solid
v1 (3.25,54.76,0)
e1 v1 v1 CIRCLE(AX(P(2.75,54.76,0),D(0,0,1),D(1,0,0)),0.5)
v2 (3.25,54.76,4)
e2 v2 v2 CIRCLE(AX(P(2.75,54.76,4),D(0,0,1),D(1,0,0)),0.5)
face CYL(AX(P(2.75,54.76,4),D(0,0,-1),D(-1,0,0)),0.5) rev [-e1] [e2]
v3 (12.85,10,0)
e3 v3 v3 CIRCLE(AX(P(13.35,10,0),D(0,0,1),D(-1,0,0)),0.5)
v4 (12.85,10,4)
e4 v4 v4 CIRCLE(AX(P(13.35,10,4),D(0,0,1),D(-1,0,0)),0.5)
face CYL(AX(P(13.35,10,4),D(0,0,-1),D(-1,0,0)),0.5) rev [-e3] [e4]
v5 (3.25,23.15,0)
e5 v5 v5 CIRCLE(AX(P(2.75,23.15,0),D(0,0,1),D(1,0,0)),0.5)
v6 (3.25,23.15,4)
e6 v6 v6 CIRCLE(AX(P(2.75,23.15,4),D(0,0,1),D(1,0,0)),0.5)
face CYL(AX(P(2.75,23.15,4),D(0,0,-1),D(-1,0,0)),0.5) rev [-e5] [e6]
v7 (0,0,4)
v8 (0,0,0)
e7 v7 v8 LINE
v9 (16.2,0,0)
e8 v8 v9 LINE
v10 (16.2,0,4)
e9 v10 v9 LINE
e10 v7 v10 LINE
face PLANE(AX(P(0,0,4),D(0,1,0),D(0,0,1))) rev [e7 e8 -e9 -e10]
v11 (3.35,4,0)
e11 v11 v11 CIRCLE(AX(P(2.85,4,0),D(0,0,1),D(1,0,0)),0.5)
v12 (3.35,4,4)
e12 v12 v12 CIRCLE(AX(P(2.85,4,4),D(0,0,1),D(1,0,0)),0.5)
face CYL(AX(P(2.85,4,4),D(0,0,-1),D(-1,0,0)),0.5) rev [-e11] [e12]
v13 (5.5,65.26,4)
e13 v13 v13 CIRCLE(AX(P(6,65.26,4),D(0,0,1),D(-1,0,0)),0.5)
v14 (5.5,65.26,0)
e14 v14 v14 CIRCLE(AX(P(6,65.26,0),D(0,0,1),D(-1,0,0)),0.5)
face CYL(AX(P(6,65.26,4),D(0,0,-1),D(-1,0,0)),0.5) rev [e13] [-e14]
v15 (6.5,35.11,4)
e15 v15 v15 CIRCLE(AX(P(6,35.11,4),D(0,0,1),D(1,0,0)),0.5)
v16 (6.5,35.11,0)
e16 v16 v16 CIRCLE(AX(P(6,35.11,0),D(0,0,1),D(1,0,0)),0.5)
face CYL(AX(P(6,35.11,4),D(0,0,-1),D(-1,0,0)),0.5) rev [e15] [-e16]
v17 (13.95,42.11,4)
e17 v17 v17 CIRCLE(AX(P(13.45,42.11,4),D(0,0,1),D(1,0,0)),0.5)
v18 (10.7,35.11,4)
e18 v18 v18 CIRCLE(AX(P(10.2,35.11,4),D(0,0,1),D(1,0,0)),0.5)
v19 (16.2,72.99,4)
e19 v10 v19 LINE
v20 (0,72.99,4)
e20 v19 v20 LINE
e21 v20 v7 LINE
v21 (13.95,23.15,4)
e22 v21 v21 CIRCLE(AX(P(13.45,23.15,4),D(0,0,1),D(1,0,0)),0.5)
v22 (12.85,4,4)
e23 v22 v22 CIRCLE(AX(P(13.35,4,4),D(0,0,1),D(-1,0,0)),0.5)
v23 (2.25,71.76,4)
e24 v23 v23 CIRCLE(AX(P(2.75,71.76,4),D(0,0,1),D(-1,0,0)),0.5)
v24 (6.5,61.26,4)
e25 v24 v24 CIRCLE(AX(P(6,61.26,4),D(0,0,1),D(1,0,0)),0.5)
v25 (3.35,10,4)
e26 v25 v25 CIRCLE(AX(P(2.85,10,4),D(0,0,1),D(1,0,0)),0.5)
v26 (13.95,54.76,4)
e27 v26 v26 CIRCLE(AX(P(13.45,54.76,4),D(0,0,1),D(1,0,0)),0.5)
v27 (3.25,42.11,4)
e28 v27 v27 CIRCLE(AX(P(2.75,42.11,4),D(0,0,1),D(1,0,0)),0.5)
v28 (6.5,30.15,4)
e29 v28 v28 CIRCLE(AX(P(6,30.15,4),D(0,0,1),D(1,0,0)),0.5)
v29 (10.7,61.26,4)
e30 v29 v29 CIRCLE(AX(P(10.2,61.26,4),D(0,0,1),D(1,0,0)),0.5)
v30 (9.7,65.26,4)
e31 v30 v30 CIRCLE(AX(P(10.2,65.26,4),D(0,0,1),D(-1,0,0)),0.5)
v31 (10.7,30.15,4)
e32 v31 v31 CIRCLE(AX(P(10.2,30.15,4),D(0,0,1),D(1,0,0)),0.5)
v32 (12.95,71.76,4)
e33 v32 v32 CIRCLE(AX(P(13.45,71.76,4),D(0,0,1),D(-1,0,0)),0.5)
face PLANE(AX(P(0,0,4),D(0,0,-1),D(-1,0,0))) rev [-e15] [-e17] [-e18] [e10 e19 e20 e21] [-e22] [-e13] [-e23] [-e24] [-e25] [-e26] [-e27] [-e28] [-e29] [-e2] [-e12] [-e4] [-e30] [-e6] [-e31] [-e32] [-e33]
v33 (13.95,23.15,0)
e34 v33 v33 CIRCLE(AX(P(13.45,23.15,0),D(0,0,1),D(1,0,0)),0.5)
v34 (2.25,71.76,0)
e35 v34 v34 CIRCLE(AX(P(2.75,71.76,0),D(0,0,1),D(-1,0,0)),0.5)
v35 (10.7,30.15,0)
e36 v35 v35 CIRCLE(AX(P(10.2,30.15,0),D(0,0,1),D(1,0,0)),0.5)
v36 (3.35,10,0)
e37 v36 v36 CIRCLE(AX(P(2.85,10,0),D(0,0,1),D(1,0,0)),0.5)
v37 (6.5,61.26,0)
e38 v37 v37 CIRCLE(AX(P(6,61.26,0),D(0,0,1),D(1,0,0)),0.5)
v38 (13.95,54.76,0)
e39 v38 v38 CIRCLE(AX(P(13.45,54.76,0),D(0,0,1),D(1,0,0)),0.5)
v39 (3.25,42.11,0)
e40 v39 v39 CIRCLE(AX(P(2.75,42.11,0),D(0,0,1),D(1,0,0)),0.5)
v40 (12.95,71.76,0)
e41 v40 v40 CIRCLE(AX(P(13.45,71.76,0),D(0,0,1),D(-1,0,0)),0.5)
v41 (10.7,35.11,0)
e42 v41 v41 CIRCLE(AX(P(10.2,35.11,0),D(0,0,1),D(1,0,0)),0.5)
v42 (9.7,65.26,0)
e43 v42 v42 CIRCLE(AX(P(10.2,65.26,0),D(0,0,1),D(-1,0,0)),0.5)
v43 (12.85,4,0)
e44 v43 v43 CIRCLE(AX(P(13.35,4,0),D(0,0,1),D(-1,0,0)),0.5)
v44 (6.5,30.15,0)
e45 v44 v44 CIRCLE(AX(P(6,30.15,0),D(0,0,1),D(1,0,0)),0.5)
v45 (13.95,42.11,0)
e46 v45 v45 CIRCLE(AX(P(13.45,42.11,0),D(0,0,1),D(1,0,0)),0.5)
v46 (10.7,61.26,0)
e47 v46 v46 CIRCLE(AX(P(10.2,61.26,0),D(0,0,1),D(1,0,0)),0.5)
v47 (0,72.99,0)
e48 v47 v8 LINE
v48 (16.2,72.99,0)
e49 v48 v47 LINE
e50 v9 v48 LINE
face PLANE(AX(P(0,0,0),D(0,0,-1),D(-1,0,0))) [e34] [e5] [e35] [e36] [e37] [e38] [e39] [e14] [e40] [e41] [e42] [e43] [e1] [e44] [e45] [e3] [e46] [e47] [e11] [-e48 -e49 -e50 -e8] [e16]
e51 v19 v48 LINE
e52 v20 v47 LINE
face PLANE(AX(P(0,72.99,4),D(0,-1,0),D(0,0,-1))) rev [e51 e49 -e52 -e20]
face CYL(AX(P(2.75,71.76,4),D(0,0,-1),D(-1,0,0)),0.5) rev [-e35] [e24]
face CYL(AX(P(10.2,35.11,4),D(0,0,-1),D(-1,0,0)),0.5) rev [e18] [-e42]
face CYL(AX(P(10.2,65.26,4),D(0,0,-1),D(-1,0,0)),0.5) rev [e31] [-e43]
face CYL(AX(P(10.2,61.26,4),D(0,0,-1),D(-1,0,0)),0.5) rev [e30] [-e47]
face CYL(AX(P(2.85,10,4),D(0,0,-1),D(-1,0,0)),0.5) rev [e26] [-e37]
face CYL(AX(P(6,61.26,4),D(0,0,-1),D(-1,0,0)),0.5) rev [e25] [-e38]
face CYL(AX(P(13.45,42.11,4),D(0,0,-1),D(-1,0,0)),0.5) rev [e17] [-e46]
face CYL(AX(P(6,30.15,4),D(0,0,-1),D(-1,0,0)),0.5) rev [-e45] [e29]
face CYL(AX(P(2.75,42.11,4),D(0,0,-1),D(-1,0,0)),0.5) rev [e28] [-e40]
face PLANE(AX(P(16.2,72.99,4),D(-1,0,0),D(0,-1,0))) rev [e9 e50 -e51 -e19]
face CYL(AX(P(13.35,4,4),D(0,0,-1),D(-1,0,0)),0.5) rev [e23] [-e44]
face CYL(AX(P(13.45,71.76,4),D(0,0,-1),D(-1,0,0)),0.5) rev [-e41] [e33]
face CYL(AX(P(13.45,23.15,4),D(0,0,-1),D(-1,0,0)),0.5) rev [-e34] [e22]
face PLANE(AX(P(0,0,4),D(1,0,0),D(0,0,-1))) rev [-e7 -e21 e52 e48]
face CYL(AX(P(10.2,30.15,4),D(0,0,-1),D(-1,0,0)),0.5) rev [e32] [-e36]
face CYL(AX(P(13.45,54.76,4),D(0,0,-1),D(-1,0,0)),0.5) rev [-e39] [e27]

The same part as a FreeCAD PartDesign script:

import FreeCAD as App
import Part
import Sketcher

V = App.Vector


def add_polygon(sketch, points):
    """Adds a closed chain of lines whose ends are joined by coincident constraints."""
    first, n = sketch.GeometryCount, len(points)
    for a, b in zip(points, points[1:] + points[:1]):
        sketch.addGeometry(Part.LineSegment(App.Vector(*a, 0), App.Vector(*b, 0)), False)
    for i in range(n):
        sketch.addConstraint(Sketcher.Constraint("Coincident", first + i, 2, first + (i + 1) % n, 1))

doc = App.newDocument("Part")
params = doc.addObject("Spreadsheet::Sheet", "Params")
for row, (alias, value) in enumerate([
    ("sketch1_diameter", "1 mm"),
    ("sketch1_width", "16.2 mm"),
    ("sketch1_height", "72.99 mm"),
    ("pad1_length", "4 mm"),
], start=1):
    params.set(f"A{row}", alias)
    params.set(f"B{row}", "=" + value)
    params.setAlias(f"B{row}", alias)

body = doc.addObject("PartDesign::Body", "Body")

# Sketch on XY plane
sketch1 = body.newObject("Sketcher::SketchObject", "Sketch")
sketch1.AttachmentSupport = (doc.getObject("XY_Plane"), [""])
sketch1.MapMode = "FlatFace"
add_polygon(sketch1, [(0, 72.99), (0, 0), (16.2, 0), (16.2, 72.99)])  # lines 0-3
sketch1.addGeometry(Part.Circle(V(2.85, 4, 0), V(0, 0, 1), 0.5), False)  # 4
sketch1.addGeometry(Part.Circle(V(2.85, 10, 0), V(0, 0, 1), 0.5), False)  # 5
sketch1.addGeometry(Part.Circle(V(2.75, 23.15, 0), V(0, 0, 1), 0.5), False)  # 6
sketch1.addGeometry(Part.Circle(V(6, 30.15, 0), V(0, 0, 1), 0.5), False)  # 7
sketch1.addGeometry(Part.Circle(V(6, 35.11, 0), V(0, 0, 1), 0.5), False)  # 8
sketch1.addGeometry(Part.Circle(V(13.35, 4, 0), V(0, 0, 1), 0.5), False)  # 9
sketch1.addGeometry(Part.Circle(V(13.35, 10, 0), V(0, 0, 1), 0.5), False)  # 10
sketch1.addGeometry(Part.Circle(V(10.2, 30.15, 0), V(0, 0, 1), 0.5), False)  # 11
sketch1.addGeometry(Part.Circle(V(10.2, 35.11, 0), V(0, 0, 1), 0.5), False)  # 12
sketch1.addGeometry(Part.Circle(V(13.45, 23.15, 0), V(0, 0, 1), 0.5), False)  # 13
sketch1.addGeometry(Part.Circle(V(2.75, 42.11, 0), V(0, 0, 1), 0.5), False)  # 14
sketch1.addGeometry(Part.Circle(V(2.75, 54.76, 0), V(0, 0, 1), 0.5), False)  # 15
sketch1.addGeometry(Part.Circle(V(2.75, 71.76, 0), V(0, 0, 1), 0.5), False)  # 16
sketch1.addGeometry(Part.Circle(V(6, 61.26, 0), V(0, 0, 1), 0.5), False)  # 17
sketch1.addGeometry(Part.Circle(V(6, 65.26, 0), V(0, 0, 1), 0.5), False)  # 18
sketch1.addGeometry(Part.Circle(V(13.45, 42.11, 0), V(0, 0, 1), 0.5), False)  # 19
sketch1.addGeometry(Part.Circle(V(13.45, 54.76, 0), V(0, 0, 1), 0.5), False)  # 20
sketch1.addGeometry(Part.Circle(V(10.2, 61.26, 0), V(0, 0, 1), 0.5), False)  # 21
sketch1.addGeometry(Part.Circle(V(10.2, 65.26, 0), V(0, 0, 1), 0.5), False)  # 22
sketch1.addGeometry(Part.Circle(V(13.45, 71.76, 0), V(0, 0, 1), 0.5), False)  # 23
sketch1.addConstraint([
    Sketcher.Constraint("Vertical", 0),
    Sketcher.Constraint("Horizontal", 1),
    Sketcher.Constraint("Vertical", 2),
    Sketcher.Constraint("Horizontal", 3),
    Sketcher.Constraint("Coincident", 0, 2, -1, 1),
    Sketcher.Constraint("Equal", 4, 5),
    Sketcher.Constraint("Equal", 5, 6),
    Sketcher.Constraint("Equal", 6, 7),
    Sketcher.Constraint("Equal", 7, 8),
    Sketcher.Constraint("Equal", 8, 9),
    Sketcher.Constraint("Equal", 9, 10),
    Sketcher.Constraint("Equal", 10, 11),
    Sketcher.Constraint("Equal", 11, 12),
    Sketcher.Constraint("Equal", 12, 13),
    Sketcher.Constraint("Equal", 13, 14),
    Sketcher.Constraint("Equal", 14, 15),
    Sketcher.Constraint("Equal", 15, 16),
    Sketcher.Constraint("Equal", 16, 17),
    Sketcher.Constraint("Equal", 17, 18),
    Sketcher.Constraint("Equal", 18, 19),
    Sketcher.Constraint("Equal", 19, 20),
    Sketcher.Constraint("Equal", 20, 21),
    Sketcher.Constraint("Equal", 21, 22),
    Sketcher.Constraint("Equal", 22, 23),
    Sketcher.Constraint("Horizontal", 4, 3, 9, 3),
    Sketcher.Constraint("Horizontal", 5, 3, 10, 3),
    Sketcher.Constraint("Horizontal", 7, 3, 11, 3),
    Sketcher.Constraint("Horizontal", 8, 3, 12, 3),
    Sketcher.Constraint("Horizontal", 6, 3, 13, 3),
    Sketcher.Constraint("Horizontal", 14, 3, 19, 3),
    Sketcher.Constraint("Horizontal", 15, 3, 20, 3),
    Sketcher.Constraint("Horizontal", 17, 3, 21, 3),
    Sketcher.Constraint("Horizontal", 18, 3, 22, 3),
    Sketcher.Constraint("Horizontal", 16, 3, 23, 3),
    Sketcher.Constraint("Vertical", 4, 3, 5, 3),
    Sketcher.Constraint("Vertical", 7, 3, 8, 3),
    Sketcher.Constraint("Vertical", 9, 3, 10, 3),
    Sketcher.Constraint("Vertical", 11, 3, 12, 3),
    Sketcher.Constraint("Vertical", 6, 3, 14, 3),
    Sketcher.Constraint("Vertical", 14, 3, 15, 3),
    Sketcher.Constraint("Vertical", 15, 3, 16, 3),
    Sketcher.Constraint("Vertical", 8, 3, 17, 3),
    Sketcher.Constraint("Vertical", 17, 3, 18, 3),
    Sketcher.Constraint("Vertical", 13, 3, 19, 3),
    Sketcher.Constraint("Vertical", 19, 3, 20, 3),
    Sketcher.Constraint("Vertical", 12, 3, 21, 3),
    Sketcher.Constraint("Vertical", 21, 3, 22, 3),
    Sketcher.Constraint("Vertical", 20, 3, 23, 3),
    Sketcher.Constraint("Diameter", 4, 1.0),
    Sketcher.Constraint("DistanceX", 1, 1, 1, 2, 16.2),
    Sketcher.Constraint("DistanceY", -1, 1, 4, 3, 4.0),
    Sketcher.Constraint("DistanceY", -1, 1, 5, 3, 10.0),
    Sketcher.Constraint("DistanceX", -1, 1, 7, 3, 6.0),
    Sketcher.Constraint("DistanceY", 6, 3, 7, 3, 7.0),
    Sketcher.Constraint("DistanceY", 8, 3, 14, 3, 7.0),
    Sketcher.Constraint("DistanceY", 15, 3, 16, 3, 17.0),
    Sketcher.Constraint("DistanceY", 17, 3, 18, 3, 4.0),
    Sketcher.Constraint("DistanceX", 22, 3, 2, 2, 6.0),
    Sketcher.Constraint("DistanceY", 0, 2, 0, 1, 72.99),
    Sketcher.Constraint("DistanceX", 6, 3, 5, 3, 0.1),
    Sketcher.Constraint("DistanceX", 4, 3, 9, 3, 10.5),
    Sketcher.Constraint("DistanceX", 6, 3, 13, 3, 10.7),
    Sketcher.Constraint("DistanceY", 15, 3, 17, 3, 6.5),
    Sketcher.Constraint("DistanceX", -1, 1, 4, 3, 2.85),
    Sketcher.Constraint("DistanceY", -1, 1, 6, 3, 23.15),
    Sketcher.Constraint("DistanceY", -1, 1, 8, 3, 35.11),
    Sketcher.Constraint("DistanceY", -1, 1, 15, 3, 54.76),
])
sketch1.setExpression("Constraints[52]", "Params.sketch1_diameter")
sketch1.setExpression("Constraints[53]", "Params.sketch1_width")
sketch1.setExpression("Constraints[62]", "Params.sketch1_height")
pad1 = body.newObject("PartDesign::Pad", "Pad")
pad1.Profile = sketch1
pad1.setExpression("Length", "Params.pad1_length")

doc.recompute()
